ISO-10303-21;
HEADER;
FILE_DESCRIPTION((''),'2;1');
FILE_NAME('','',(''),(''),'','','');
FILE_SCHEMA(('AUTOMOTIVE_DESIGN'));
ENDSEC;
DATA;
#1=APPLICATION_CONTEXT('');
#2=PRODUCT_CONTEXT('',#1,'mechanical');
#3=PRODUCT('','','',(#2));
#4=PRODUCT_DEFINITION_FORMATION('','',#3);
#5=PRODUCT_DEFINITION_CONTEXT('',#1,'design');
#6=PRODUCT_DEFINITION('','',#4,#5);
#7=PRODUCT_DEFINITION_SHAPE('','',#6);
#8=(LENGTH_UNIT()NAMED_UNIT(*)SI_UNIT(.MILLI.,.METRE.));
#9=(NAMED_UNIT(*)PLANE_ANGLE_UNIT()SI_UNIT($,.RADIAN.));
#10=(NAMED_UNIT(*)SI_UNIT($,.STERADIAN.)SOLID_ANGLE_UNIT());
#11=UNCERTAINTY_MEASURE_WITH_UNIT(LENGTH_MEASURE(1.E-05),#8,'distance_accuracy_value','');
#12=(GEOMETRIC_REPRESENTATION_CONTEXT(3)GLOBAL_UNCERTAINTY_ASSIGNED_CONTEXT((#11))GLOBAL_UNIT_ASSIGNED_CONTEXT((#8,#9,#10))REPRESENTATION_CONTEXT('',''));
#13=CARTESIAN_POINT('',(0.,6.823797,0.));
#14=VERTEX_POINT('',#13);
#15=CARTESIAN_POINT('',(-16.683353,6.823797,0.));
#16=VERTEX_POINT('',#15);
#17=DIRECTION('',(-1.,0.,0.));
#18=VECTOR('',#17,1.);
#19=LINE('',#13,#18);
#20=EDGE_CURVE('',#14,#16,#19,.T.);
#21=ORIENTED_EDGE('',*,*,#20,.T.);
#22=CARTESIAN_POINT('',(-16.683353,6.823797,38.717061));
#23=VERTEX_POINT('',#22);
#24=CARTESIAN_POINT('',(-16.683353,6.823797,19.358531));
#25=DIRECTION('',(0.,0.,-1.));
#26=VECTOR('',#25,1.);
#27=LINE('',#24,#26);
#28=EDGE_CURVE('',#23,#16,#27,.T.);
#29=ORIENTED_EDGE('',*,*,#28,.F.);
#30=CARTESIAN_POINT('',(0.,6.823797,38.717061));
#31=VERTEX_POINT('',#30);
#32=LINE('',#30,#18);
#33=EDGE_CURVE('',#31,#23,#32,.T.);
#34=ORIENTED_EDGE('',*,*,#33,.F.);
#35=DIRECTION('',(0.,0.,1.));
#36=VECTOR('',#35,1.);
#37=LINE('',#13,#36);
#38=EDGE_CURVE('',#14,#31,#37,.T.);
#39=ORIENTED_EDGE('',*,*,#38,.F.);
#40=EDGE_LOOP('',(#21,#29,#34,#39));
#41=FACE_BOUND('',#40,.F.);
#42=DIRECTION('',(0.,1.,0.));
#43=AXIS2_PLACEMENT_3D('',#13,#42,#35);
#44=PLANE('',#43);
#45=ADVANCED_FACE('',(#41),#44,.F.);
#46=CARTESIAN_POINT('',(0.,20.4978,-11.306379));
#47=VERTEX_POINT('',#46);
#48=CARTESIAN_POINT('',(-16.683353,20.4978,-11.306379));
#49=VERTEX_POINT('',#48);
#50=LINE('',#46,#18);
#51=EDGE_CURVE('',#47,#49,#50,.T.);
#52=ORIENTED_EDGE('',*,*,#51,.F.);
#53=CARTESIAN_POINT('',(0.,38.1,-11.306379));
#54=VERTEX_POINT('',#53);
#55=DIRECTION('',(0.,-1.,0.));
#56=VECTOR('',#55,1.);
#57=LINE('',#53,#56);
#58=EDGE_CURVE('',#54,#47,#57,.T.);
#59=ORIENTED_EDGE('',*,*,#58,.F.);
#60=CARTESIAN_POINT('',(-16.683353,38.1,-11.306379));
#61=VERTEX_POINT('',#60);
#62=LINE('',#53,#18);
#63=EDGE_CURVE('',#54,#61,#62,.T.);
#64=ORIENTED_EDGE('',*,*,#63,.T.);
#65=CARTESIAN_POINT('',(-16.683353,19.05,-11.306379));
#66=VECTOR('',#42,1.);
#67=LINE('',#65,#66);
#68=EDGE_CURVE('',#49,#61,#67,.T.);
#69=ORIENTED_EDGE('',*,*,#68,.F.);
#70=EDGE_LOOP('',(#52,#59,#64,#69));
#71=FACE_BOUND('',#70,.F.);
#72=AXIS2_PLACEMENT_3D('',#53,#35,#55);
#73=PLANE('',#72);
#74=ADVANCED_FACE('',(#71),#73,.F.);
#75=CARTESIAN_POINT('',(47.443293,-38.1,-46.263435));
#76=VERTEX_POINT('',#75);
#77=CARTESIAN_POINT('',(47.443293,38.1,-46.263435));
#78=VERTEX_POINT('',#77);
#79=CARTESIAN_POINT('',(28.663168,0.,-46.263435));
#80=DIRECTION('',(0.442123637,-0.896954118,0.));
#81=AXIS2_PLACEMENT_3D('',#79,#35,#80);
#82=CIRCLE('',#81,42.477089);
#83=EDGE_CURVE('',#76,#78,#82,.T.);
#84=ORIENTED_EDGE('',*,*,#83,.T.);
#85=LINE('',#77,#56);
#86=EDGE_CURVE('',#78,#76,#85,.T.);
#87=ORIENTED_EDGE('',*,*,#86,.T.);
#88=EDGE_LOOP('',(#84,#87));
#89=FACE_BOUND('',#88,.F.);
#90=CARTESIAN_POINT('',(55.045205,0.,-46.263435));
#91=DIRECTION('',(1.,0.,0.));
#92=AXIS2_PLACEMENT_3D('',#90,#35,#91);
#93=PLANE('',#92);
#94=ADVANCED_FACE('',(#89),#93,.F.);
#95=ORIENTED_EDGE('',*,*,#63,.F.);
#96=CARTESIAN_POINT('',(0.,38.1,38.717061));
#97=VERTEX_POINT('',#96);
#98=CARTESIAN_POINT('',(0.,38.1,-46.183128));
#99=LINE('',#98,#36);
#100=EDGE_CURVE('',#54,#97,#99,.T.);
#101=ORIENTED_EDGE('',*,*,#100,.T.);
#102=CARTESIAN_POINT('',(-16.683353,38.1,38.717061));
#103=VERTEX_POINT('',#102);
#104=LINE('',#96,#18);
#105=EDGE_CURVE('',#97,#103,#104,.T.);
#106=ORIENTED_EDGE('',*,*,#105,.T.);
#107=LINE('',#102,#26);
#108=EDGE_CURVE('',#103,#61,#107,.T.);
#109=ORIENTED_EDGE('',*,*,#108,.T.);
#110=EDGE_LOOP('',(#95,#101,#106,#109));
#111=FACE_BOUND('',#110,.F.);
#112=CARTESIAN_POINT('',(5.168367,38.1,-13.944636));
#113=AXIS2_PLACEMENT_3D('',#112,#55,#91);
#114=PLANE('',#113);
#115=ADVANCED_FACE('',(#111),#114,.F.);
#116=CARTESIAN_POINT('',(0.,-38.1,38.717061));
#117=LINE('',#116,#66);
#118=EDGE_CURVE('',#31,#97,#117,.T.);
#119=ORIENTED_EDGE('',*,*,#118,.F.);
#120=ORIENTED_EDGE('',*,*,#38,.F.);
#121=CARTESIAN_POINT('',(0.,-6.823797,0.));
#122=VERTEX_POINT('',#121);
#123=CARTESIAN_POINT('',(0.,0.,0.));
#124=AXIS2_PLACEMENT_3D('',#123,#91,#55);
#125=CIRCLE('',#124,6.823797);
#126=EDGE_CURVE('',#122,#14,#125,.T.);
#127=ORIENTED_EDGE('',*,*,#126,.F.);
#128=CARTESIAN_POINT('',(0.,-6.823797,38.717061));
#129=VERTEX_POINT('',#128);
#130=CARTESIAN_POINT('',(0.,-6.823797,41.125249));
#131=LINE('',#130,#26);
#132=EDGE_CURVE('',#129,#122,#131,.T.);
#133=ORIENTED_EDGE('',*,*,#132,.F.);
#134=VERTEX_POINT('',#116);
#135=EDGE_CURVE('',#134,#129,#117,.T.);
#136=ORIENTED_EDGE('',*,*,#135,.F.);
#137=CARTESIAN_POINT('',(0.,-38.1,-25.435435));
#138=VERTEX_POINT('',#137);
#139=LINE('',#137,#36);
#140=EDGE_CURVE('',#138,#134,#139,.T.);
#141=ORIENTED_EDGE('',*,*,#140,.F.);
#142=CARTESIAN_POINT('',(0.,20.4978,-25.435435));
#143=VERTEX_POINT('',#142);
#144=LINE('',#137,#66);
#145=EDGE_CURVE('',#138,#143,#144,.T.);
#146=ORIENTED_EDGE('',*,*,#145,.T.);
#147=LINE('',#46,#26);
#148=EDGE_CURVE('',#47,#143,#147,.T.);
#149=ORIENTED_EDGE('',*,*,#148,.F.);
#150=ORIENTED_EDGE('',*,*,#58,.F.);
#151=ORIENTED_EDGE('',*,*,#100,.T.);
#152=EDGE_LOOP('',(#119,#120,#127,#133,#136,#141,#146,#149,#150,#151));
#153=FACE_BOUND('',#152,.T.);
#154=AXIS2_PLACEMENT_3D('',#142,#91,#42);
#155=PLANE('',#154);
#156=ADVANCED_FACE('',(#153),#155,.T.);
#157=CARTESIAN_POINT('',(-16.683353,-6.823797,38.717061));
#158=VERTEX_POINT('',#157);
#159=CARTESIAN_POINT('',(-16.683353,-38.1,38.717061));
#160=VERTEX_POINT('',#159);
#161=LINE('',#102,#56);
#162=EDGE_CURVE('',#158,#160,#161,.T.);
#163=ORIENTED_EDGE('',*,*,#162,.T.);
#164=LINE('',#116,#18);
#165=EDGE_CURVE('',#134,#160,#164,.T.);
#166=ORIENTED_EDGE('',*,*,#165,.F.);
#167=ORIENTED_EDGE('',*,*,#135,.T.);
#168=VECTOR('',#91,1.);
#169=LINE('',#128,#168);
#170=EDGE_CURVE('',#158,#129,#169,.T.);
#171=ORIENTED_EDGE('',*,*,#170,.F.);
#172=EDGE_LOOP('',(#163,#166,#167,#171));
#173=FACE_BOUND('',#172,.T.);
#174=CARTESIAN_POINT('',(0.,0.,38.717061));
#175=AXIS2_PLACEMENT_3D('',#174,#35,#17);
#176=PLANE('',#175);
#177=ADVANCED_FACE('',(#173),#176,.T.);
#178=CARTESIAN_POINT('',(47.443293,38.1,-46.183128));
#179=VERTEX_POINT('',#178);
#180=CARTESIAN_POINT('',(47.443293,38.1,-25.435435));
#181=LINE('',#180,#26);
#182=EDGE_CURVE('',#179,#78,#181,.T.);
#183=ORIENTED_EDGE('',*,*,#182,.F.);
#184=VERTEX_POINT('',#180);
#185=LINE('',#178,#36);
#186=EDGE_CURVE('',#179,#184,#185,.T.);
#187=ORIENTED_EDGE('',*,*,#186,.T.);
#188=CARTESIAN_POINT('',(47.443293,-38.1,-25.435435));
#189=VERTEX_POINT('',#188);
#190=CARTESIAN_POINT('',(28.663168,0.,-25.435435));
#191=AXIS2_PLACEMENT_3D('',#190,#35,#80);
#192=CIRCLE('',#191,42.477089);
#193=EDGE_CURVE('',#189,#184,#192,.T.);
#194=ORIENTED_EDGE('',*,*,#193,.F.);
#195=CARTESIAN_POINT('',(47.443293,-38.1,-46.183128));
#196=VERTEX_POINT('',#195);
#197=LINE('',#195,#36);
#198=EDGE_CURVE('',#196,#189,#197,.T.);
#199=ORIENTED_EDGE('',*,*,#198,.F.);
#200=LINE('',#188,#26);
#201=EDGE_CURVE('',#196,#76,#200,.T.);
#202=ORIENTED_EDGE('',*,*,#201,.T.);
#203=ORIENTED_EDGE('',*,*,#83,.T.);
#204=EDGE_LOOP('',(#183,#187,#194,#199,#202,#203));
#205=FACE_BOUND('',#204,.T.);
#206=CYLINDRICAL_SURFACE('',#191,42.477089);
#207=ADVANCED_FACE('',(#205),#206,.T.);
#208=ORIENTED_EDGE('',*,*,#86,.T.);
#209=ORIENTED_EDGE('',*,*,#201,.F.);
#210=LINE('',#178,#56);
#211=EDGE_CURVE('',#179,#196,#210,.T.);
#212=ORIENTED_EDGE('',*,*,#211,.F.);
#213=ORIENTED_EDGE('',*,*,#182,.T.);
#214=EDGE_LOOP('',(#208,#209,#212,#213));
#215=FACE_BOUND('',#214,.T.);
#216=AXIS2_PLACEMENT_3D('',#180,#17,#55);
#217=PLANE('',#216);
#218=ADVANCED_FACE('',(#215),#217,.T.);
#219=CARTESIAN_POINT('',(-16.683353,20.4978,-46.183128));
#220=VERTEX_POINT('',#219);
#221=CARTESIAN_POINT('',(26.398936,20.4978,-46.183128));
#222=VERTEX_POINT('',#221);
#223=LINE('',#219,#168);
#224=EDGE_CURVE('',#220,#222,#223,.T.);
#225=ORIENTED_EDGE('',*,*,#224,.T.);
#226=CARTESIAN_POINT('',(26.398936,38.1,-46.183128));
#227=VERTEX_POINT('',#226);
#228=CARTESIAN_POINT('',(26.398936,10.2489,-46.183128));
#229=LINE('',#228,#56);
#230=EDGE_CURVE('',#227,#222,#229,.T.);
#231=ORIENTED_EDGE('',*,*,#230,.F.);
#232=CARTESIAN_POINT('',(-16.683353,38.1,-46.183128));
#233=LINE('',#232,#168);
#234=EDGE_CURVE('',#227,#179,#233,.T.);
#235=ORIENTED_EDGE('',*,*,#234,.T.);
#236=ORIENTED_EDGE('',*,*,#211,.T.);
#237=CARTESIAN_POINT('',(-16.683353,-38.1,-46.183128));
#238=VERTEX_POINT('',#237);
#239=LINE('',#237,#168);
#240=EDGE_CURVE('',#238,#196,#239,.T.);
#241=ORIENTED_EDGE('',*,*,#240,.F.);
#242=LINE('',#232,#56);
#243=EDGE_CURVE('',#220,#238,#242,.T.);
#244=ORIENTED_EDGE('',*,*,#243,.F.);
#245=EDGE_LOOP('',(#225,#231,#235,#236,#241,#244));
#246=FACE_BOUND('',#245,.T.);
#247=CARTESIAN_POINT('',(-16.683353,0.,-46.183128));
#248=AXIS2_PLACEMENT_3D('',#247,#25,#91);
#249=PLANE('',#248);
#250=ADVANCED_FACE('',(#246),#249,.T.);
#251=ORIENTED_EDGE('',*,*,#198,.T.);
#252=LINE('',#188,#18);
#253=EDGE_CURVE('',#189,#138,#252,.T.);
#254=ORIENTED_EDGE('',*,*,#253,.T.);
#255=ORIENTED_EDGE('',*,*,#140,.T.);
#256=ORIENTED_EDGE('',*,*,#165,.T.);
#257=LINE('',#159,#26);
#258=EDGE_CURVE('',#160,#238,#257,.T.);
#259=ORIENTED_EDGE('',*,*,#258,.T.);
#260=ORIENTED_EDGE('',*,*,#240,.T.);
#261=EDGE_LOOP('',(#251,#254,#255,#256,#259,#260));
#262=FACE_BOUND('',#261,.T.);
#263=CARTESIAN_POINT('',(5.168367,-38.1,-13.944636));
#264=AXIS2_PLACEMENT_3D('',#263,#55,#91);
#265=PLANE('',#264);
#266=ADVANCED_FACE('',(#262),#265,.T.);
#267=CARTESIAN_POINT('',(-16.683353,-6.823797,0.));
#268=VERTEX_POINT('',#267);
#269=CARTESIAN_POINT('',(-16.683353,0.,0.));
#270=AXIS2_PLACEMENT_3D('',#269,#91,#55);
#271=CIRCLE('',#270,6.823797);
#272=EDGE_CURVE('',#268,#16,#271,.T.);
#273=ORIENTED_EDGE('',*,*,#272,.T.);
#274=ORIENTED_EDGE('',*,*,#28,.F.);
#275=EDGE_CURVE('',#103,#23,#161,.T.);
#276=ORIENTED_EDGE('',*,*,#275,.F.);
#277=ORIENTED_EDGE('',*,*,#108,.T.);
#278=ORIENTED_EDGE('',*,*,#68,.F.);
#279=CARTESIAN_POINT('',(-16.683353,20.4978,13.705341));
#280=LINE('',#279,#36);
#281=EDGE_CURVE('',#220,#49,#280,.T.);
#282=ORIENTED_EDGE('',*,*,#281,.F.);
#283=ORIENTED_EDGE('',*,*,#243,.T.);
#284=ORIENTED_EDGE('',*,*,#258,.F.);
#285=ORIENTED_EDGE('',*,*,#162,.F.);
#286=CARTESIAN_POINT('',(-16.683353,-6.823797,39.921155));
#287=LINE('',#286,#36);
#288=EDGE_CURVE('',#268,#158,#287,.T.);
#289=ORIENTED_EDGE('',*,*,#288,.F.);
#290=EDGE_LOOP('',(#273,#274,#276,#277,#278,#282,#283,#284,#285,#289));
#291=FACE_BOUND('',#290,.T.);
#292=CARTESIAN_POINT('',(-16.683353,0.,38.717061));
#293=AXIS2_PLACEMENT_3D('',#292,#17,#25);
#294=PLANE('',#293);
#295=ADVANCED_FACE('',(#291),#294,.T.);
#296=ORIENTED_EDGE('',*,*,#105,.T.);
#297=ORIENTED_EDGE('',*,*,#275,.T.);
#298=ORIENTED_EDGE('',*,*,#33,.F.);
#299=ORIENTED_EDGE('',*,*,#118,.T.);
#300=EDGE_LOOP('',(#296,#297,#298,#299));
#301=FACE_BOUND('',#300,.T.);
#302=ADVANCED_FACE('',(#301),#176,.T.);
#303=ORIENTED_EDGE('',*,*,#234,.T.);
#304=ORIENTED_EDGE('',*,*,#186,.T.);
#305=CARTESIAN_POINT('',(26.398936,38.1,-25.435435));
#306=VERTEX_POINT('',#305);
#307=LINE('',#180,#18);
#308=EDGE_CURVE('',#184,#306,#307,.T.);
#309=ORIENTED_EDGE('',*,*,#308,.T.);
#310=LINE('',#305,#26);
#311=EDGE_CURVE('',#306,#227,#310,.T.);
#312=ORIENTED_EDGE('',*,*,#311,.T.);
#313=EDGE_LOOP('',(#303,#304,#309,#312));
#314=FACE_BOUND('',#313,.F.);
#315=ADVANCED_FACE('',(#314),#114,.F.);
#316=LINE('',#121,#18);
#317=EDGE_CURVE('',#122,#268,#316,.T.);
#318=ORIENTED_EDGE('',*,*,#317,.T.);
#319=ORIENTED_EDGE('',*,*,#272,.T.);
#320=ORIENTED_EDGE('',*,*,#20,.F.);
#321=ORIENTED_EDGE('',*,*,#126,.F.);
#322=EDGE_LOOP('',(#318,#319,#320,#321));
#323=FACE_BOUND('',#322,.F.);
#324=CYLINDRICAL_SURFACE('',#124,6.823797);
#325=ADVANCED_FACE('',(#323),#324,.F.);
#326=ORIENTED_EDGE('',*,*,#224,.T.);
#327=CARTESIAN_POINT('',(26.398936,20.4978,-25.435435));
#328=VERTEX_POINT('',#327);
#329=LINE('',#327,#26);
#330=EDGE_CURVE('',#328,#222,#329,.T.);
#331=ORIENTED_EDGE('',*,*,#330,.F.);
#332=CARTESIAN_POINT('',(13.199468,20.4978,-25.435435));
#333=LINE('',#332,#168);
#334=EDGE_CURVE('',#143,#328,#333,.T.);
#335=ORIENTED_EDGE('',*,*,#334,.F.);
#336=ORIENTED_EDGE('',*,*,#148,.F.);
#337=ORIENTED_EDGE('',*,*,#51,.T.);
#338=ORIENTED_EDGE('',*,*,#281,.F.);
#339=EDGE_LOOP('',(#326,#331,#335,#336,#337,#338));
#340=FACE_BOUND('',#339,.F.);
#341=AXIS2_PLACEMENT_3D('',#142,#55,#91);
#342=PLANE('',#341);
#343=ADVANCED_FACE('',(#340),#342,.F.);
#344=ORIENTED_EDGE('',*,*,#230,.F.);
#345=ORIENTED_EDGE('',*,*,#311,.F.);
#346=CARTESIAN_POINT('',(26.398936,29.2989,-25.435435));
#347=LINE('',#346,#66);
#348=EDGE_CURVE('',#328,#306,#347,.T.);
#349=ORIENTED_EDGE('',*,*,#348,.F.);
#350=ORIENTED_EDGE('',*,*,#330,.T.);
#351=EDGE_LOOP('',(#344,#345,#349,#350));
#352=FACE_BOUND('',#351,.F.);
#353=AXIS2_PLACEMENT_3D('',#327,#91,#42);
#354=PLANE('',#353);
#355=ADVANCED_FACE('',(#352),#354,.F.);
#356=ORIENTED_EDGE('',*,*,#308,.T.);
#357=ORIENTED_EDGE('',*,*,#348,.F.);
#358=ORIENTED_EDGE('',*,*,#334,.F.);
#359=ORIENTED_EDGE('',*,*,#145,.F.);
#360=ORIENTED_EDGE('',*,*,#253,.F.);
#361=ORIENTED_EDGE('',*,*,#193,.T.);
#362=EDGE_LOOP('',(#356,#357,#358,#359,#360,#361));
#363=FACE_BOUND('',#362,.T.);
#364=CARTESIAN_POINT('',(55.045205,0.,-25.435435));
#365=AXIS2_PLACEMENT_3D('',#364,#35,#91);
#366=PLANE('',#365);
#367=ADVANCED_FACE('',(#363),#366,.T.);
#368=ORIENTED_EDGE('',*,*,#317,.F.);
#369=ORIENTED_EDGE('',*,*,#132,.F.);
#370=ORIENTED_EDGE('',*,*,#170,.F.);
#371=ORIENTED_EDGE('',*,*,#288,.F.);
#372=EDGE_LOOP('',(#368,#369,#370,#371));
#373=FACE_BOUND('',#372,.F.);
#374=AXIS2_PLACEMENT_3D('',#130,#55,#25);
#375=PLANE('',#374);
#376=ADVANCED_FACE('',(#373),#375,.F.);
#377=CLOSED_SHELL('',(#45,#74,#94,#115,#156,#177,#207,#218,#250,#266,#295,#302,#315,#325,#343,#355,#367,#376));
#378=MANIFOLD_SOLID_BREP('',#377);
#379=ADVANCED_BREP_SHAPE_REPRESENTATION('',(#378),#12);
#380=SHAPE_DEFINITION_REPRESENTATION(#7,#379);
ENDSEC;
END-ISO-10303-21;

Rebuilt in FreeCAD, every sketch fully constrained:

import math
import FreeCAD as App
import Part
import Sketcher
from FreeCAD import Vector
Q = App.Units.Quantity


def add_polygon(sketch, points):
    """Adds a closed chain of lines whose ends are joined by coincident constraints."""
    first, n = sketch.GeometryCount, len(points)
    for a, b in zip(points, points[1:] + points[:1]):
        sketch.addGeometry(Part.LineSegment(App.Vector(*a, 0), App.Vector(*b, 0)), False)
    for i in range(n):
        sketch.addConstraint(Sketcher.Constraint("Coincident", first + i, 2, first + (i + 1) % n, 1))

doc = App.newDocument("Part")
params = doc.addObject("Spreadsheet::Sheet", "Params")
for row, (alias, value) in enumerate([
    ("pad1_length", "3 in"),
    ("sketch2_height", "3 in"),
    ("pad2_length", "0.82 in"),
    ("pocket1_length", "2 in"),
    ("sketch4_height", "0.693 in"),
    ("pocket2_length", "2 in"),
    ("sketch5_width", "0.693 in"),
    ("pocket3_length", "2 in"),
], start=1):
    params.set(f"A{row}", alias)
    params.set(f"B{row}", "=" + value)
    params.setAlias(f"B{row}", alias)

body = doc.addObject("PartDesign::Body", "Body")

sketch1 = body.newObject("Sketcher::SketchObject", "Sketch")
sketch1.AttachmentSupport = (doc.getObject("XZ_Plane"), [""])
sketch1.MapMode = "FlatFace"
add_polygon(sketch1, [(0, 39), (-17, 39), (-17, -46), (47, -46), (47, -25), (0, -25)])
sketch1.addConstraint([
    Sketcher.Constraint("Horizontal", 0),
    Sketcher.Constraint("Vertical", 1),
    Sketcher.Constraint("Horizontal", 2),
    Sketcher.Constraint("Vertical", 3),
    Sketcher.Constraint("Horizontal", 4),
    Sketcher.Constraint("Vertical", 5),
    Sketcher.Constraint("PointOnObject", 4, 2, -2),
    Sketcher.Constraint("DistanceY", 1, 2, 1, 1, Q("84.900189 mm")),
    Sketcher.Constraint("DistanceX", 0, 2, 0, 1, Q("16.683353 mm")),
    Sketcher.Constraint("DistanceX", 2, 1, 2, 2, Q("64.126646 mm")),
    Sketcher.Constraint("DistanceY", 3, 1, 3, 2, Q("20.747693 mm")),
    Sketcher.Constraint("DistanceY", -1, 1, 0, 2, Q("38.717061 mm")),
])
pad1 = body.newObject("PartDesign::Pad", "Pad")
pad1.Profile = sketch1
pad1.setExpression("Length", "Params.pad1_length")
pad1.Midplane = True

sketch2 = body.newObject("Sketcher::SketchObject", "Sketch001")
sketch2.AttachmentSupport = (doc.getObject("XY_Plane"), [""])
sketch2.MapMode = "FlatFace"
sketch2.AttachmentOffset = App.Placement(Vector(0, 0, -25.435435), App.Rotation())
sketch2.addGeometry([
    Part.LineSegment(Vector(47, 38, 0), Vector(47, -38, 0)),
    Part.ArcOfCircle(Part.Circle(Vector(29, 0, 0), Vector(0, 0, 1), 42), math.radians(-64), math.radians(64)),
], False)
sketch2.addConstraint([
    Sketcher.Constraint("Coincident", 0, 1, 1, 2),
    Sketcher.Constraint("Coincident", 1, 1, 0, 2),
    Sketcher.Constraint("Vertical", 0),
    Sketcher.Constraint("PointOnObject", 1, 3, -1),
    Sketcher.Constraint("DistanceY", 0, 2, 0, 1, Q("3 in")),
    Sketcher.Constraint("Radius", 1, Q("42.477089 mm")),
    Sketcher.Constraint("DistanceX", -1, 1, 1, 3, Q("28.663168 mm")),
])
sketch2.setExpression("Constraints[4]", "Params.sketch2_height")
pad2 = body.newObject("PartDesign::Pad", "Pad001")
pad2.Profile = sketch2
pad2.setExpression("Length", "Params.pad2_length")
pad2.Reversed = True

sketch3 = body.newObject("Sketcher::SketchObject", "Sketch002")
sketch3.AttachmentSupport = (doc.getObject("YZ_Plane"), [""])
sketch3.MapMode = "FlatFace"
sketch3.addGeometry([
    Part.LineSegment(Vector(7, 0, 0), Vector(7, 41, 0)),
    Part.LineSegment(Vector(7, 41, 0), Vector(-7, 41, 0)),
    Part.LineSegment(Vector(-7, 41, 0), Vector(-7, 0, 0)),
    Part.ArcOfCircle(Part.Circle(Vector(0, 0, 0), Vector(0, 0, 1), 7), math.radians(180), math.radians(360)),
], False)
sketch3.addConstraint([
    Sketcher.Constraint("Coincident", 0, 2, 1, 1),
    Sketcher.Constraint("Coincident", 1, 2, 2, 1),
    Sketcher.Constraint("Tangent", 2, 2, 3, 1),
    Sketcher.Constraint("Tangent", 3, 2, 0, 1),
    Sketcher.Constraint("Vertical", 0),
    Sketcher.Constraint("Horizontal", 1),
    Sketcher.Constraint("Vertical", 2),
    Sketcher.Constraint("Coincident", 3, 3, -1, 1),
    Sketcher.Constraint("Radius", 3, Q("6.823797 mm")),
    Sketcher.Constraint("DistanceY", 0, 1, 0, 2, Q("41.125249 mm")),
])
pocket1 = body.newObject("PartDesign::Pocket", "Pocket")
pocket1.Profile = sketch3
pocket1.setExpression("Length", "Params.pocket1_length")

sketch4 = body.newObject("Sketcher::SketchObject", "Sketch003")
sketch4.AttachmentSupport = (doc.getObject("XY_Plane"), [""])
sketch4.MapMode = "FlatFace"
sketch4.AttachmentOffset = App.Placement(Vector(0, 0, -25.435435), App.Rotation())
add_polygon(sketch4, [(0, 38), (0, 20), (26, 20), (26, 38)])
sketch4.addConstraint([
    Sketcher.Constraint("Vertical", 0),
    Sketcher.Constraint("Horizontal", 1),
    Sketcher.Constraint("Vertical", 2),
    Sketcher.Constraint("Horizontal", 3),
    Sketcher.Constraint("PointOnObject", 0, 2, -2),
    Sketcher.Constraint("DistanceY", -1, 1, 2, 2, Q("1.5 in")),
    Sketcher.Constraint("DistanceY", 0, 2, 0, 1, Q("0.693 in")),
    Sketcher.Constraint("DistanceX", 1, 1, 1, 2, Q("26.398936 mm")),
])
sketch4.setExpression("Constraints[10]", "Params.sketch4_height")
pocket2 = body.newObject("PartDesign::Pocket", "Pocket001")
pocket2.Profile = sketch4
pocket2.setExpression("Length", "Params.pocket2_length")

sketch5 = body.newObject("Sketcher::SketchObject", "Sketch004")
sketch5.AttachmentSupport = (doc.getObject("YZ_Plane"), [""])
sketch5.MapMode = "FlatFace"
add_polygon(sketch5, [(20, -11), (20, -46), (38, -46), (38, -11)])
sketch5.addConstraint([
    Sketcher.Constraint("Vertical", 0),
    Sketcher.Constraint("Horizontal", 1),
    Sketcher.Constraint("Vertical", 2),
    Sketcher.Constraint("Horizontal", 3),
    Sketcher.Constraint("DistanceX", -1, 1, 1, 2, Q("1.5 in")),
    Sketcher.Constraint("DistanceX", 1, 1, 1, 2, Q("0.693 in")),
    Sketcher.Constraint("DistanceY", 0, 2, 0, 1, Q("34.876749 mm")),
    Sketcher.Constraint("DistanceY", 0, 2, -1, 1, Q("46.183128 mm")),
])
sketch5.setExpression("Constraints[9]", "Params.sketch5_width")
pocket3 = body.newObject("PartDesign::Pocket", "Pocket002")
pocket3.Profile = sketch5
pocket3.setExpression("Length", "Params.pocket3_length")

doc.recompute()
